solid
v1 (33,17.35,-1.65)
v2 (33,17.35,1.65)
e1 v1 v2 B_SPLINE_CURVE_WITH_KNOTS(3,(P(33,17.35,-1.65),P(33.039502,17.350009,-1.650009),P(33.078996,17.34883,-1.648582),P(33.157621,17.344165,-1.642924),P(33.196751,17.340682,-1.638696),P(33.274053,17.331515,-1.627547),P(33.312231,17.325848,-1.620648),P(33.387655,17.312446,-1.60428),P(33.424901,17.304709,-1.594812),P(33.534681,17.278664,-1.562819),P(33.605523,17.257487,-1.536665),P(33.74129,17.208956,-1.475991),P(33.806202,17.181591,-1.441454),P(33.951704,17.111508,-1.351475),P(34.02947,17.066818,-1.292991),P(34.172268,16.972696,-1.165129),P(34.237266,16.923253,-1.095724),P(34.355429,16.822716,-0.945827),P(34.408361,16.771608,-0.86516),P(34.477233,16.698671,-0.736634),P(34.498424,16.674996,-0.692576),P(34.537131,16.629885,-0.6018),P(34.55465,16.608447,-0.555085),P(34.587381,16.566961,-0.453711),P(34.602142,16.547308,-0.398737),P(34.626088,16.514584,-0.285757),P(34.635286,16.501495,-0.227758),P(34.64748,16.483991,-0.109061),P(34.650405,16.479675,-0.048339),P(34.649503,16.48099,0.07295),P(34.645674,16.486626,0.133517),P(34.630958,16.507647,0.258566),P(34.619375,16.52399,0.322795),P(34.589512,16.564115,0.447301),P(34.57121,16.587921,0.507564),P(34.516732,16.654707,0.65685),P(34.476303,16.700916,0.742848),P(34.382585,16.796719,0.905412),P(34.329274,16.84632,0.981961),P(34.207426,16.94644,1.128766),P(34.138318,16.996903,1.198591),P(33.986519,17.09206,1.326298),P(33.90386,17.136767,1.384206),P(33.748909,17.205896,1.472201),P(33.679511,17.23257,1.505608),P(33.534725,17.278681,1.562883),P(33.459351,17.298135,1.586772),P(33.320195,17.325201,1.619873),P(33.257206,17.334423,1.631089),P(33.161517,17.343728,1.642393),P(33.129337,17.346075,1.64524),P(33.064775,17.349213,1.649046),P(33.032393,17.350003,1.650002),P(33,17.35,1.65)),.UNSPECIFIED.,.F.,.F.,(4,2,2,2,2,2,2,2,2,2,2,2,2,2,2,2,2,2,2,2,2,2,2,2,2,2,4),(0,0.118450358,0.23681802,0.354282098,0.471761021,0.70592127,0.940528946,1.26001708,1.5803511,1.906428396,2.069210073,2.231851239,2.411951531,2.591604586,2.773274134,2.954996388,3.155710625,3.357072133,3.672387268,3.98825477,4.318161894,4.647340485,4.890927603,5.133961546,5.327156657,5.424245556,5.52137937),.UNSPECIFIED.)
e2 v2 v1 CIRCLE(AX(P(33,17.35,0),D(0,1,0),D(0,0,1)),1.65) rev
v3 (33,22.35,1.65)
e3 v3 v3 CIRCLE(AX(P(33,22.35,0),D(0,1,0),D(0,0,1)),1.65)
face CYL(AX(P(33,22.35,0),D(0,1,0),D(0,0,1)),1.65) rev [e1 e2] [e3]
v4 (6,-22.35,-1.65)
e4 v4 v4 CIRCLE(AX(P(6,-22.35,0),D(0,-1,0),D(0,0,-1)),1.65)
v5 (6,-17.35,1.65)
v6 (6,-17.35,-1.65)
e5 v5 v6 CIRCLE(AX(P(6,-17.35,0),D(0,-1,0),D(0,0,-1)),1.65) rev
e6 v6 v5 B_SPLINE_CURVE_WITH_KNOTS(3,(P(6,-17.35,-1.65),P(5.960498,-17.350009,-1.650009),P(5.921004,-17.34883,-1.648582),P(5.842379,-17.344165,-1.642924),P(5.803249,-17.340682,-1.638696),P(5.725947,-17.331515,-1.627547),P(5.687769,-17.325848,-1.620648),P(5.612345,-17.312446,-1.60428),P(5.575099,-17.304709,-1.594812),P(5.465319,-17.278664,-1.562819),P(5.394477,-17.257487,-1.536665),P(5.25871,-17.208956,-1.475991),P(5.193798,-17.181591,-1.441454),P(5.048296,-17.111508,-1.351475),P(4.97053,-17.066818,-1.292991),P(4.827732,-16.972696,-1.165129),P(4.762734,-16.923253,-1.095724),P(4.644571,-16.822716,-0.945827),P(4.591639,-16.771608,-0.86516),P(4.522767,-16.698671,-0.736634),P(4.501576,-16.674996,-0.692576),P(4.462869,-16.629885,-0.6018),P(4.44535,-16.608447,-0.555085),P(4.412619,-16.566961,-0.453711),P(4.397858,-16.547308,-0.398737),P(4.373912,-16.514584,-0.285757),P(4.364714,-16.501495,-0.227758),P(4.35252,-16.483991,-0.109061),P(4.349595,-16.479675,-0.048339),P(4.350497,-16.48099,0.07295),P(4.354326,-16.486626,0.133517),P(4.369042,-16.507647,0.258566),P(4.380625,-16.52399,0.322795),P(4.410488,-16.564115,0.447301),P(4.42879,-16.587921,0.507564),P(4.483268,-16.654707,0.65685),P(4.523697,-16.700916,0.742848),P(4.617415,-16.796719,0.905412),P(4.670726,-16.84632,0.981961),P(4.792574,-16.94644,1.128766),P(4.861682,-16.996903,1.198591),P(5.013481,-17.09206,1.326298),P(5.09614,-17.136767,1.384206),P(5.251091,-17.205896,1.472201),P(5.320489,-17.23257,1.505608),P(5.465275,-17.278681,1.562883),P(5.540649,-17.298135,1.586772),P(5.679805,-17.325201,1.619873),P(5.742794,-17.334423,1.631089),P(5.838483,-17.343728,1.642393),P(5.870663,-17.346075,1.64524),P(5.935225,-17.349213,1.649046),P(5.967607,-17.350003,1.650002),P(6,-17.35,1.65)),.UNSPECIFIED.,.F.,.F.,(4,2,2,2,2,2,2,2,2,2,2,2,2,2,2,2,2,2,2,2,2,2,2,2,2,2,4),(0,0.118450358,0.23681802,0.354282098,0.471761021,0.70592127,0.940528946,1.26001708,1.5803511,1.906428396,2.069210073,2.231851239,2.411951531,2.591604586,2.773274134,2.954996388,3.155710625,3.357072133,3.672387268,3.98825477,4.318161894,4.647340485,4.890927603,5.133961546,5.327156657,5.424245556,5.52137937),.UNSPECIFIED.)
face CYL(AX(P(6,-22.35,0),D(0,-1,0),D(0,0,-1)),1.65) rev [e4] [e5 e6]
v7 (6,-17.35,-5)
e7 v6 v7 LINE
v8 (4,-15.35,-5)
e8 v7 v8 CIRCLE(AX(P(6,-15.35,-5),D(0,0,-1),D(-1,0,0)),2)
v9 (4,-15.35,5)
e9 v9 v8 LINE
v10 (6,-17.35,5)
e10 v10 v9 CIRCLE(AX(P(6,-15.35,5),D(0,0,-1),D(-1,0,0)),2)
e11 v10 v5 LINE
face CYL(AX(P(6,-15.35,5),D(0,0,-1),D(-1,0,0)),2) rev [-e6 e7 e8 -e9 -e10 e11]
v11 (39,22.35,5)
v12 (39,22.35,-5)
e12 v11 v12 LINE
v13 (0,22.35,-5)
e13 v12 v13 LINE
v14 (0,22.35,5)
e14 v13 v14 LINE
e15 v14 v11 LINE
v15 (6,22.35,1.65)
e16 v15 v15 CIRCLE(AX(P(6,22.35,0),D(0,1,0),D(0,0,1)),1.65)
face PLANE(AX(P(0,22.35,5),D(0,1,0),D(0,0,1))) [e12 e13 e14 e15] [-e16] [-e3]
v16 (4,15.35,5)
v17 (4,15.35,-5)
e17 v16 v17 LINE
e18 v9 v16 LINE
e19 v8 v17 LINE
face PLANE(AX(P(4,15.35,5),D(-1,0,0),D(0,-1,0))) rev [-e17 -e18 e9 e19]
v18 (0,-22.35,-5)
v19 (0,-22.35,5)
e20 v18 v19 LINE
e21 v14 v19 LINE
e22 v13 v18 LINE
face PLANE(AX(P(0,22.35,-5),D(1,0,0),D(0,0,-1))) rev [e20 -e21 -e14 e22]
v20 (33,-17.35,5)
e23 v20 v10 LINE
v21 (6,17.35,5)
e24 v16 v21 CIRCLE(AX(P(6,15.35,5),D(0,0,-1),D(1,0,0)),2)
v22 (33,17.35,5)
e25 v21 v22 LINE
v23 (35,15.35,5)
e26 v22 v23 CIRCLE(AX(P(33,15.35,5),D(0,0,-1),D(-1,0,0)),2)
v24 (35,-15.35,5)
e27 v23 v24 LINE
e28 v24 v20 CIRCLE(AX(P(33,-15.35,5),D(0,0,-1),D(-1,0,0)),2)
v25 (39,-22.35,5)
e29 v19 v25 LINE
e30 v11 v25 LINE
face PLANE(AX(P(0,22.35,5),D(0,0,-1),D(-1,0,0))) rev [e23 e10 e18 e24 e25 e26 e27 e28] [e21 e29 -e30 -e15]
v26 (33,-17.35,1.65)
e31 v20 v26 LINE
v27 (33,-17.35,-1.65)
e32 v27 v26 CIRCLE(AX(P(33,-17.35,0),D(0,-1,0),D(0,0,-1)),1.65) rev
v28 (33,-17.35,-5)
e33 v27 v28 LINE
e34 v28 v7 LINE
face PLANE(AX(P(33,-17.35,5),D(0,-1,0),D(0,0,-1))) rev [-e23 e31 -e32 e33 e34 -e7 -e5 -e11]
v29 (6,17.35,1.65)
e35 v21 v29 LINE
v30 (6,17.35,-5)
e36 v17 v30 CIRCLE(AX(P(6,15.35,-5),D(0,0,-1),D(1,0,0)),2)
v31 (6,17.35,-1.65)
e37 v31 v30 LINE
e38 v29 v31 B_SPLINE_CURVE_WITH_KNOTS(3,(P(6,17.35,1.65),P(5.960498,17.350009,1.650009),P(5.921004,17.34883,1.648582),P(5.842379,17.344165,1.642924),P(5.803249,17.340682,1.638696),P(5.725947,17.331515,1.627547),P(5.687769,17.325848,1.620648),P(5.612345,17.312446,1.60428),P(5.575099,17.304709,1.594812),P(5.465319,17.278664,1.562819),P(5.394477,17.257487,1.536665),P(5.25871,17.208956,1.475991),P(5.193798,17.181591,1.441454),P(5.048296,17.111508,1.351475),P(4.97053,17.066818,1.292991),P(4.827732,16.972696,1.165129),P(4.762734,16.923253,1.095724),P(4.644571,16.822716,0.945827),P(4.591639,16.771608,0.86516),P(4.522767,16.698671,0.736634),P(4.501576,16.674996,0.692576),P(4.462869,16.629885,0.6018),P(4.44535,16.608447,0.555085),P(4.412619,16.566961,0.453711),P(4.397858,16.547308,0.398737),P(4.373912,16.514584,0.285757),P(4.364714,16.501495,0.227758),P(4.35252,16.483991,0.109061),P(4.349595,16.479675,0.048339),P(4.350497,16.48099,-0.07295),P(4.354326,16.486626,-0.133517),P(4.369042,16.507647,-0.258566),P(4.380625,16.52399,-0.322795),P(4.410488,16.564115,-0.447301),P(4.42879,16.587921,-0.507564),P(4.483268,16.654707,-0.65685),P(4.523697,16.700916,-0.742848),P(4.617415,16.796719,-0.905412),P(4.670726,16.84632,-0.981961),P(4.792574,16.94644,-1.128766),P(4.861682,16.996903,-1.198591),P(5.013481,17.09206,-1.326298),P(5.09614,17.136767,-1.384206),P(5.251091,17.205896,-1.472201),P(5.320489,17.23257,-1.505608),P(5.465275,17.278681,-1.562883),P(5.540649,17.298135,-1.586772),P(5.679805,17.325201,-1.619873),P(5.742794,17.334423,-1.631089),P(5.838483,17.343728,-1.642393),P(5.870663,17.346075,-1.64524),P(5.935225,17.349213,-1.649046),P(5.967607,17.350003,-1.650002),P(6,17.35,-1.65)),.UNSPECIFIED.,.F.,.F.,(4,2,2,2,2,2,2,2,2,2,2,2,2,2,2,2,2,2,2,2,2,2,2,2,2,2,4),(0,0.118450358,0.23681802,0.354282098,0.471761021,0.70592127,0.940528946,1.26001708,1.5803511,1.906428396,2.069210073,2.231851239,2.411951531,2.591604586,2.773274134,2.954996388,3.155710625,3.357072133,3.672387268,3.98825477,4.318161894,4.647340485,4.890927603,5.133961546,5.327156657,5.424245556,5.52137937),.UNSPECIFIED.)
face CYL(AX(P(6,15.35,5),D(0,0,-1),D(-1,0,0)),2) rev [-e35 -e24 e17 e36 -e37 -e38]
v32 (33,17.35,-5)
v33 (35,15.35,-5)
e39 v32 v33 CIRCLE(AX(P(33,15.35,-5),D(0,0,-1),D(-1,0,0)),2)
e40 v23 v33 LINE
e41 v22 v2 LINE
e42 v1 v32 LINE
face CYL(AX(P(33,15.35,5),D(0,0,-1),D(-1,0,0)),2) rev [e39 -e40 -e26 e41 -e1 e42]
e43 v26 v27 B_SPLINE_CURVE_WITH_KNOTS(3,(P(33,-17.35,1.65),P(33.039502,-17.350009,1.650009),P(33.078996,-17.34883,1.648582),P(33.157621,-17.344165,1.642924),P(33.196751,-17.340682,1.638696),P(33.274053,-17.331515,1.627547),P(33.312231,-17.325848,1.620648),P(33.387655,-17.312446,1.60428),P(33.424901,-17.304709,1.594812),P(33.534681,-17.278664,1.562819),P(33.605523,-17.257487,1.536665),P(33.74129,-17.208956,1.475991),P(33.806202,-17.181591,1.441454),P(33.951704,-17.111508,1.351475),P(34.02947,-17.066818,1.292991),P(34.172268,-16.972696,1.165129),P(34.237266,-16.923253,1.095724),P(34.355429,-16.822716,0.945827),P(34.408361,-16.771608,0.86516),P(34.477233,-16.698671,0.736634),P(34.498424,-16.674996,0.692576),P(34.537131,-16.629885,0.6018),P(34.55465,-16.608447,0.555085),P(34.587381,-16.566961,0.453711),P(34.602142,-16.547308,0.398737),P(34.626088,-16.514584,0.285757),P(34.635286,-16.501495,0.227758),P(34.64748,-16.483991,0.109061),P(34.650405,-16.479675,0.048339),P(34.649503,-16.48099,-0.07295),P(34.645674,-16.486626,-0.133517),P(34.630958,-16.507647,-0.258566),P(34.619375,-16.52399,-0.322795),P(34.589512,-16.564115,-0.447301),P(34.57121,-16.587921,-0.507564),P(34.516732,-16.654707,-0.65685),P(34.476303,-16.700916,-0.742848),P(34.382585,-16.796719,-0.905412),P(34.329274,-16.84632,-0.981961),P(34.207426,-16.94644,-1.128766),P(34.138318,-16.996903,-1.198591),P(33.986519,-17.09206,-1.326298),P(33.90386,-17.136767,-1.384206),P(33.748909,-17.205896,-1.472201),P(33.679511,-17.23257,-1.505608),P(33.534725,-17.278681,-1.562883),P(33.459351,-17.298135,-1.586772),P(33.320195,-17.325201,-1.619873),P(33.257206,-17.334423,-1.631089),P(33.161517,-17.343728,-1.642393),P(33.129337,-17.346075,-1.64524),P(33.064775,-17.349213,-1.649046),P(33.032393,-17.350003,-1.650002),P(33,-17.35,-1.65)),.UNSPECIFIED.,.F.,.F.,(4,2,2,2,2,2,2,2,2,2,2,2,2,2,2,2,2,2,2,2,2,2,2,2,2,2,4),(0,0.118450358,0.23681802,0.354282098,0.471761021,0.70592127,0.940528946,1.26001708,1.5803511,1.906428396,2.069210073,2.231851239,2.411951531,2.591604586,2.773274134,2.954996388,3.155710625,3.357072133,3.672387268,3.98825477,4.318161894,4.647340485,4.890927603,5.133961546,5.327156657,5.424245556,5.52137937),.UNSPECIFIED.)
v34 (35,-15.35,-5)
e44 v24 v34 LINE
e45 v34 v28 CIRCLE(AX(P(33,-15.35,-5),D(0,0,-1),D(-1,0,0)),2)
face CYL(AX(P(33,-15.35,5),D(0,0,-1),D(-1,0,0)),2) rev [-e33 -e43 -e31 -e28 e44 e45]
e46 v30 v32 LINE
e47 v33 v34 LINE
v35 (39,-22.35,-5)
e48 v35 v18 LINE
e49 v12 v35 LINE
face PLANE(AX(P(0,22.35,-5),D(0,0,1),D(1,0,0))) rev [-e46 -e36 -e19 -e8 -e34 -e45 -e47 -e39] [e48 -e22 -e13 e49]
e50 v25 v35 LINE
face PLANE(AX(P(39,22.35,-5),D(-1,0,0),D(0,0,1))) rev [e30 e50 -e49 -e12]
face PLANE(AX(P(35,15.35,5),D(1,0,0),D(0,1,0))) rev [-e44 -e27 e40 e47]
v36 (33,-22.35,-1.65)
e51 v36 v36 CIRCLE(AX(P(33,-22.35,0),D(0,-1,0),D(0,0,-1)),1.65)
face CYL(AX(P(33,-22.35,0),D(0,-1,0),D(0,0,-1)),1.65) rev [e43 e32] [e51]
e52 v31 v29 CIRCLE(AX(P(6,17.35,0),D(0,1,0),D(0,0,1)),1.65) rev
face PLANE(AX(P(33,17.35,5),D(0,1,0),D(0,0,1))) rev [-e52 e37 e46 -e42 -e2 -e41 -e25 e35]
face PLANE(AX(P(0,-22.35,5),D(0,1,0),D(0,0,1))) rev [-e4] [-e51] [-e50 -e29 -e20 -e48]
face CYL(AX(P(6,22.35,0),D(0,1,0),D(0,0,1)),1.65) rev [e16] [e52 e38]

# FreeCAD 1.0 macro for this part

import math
import FreeCAD as App
import Part
import Sketcher

V = App.Vector

doc = App.newDocument("Part")
body = doc.addObject("PartDesign::Body", "Body")

# Sketch on XZ plane
sketch1 = body.newObject("Sketcher::SketchObject", "Sketch")
sketch1.AttachmentSupport = (doc.getObject("XZ_Plane"), [""])
sketch1.MapMode = "FlatFace"
sketch1.addGeometry(Part.LineSegment(V(0, -5, 0), V(0, 5, 0)), False)
sketch1.addGeometry(Part.LineSegment(V(0, 5, 0), V(39, 5, 0)), False)
sketch1.addGeometry(Part.LineSegment(V(39, 5, 0), V(39, -5, 0)), False)
sketch1.addGeometry(Part.LineSegment(V(39, -5, 0), V(0, -5, 0)), False)
sketch1.addConstraint(Sketcher.Constraint("Coincident", 0, 2, 1, 1))
sketch1.addConstraint(Sketcher.Constraint("Coincident", 1, 2, 2, 1))
sketch1.addConstraint(Sketcher.Constraint("Coincident", 2, 2, 3, 1))
sketch1.addConstraint(Sketcher.Constraint("Coincident", 3, 2, 0, 1))
sketch1.addConstraint(Sketcher.Constraint("Vertical", 0))
sketch1.addConstraint(Sketcher.Constraint("Horizontal", 1))
sketch1.addConstraint(Sketcher.Constraint("Vertical", 2))
sketch1.addConstraint(Sketcher.Constraint("Horizontal", 3))
sketch1.addConstraint(Sketcher.Constraint("Symmetric", 0, 2, 3, 2, -1, 1))
sketch1.addConstraint(Sketcher.Constraint("DistanceX", 1, 1, 1, 2, 39.0))
sketch1.addConstraint(Sketcher.Constraint("DistanceY", 0, 1, 0, 2, 10.0))
pad1 = body.newObject("PartDesign::Pad", "Pad")
pad1.Profile = sketch1
pad1.Length = 44.7
pad1.Midplane = True

# Sketch on XZ plane
sketch2 = body.newObject("Sketcher::SketchObject", "Sketch001")
sketch2.AttachmentSupport = (doc.getObject("XZ_Plane"), [""])
sketch2.MapMode = "FlatFace"
sketch2.AttachmentOffset = App.Placement(V(0, 0, 22.35), App.Rotation())
sketch2.addGeometry(Part.Circle(V(33, 0, 0), V(0, 0, 1), 1.6), False)
sketch2.addGeometry(Part.Circle(V(6, 0, 0), V(0, 0, 1), 1.6), False)
sketch2.addConstraint(Sketcher.Constraint("Equal", 0, 1))
sketch2.addConstraint(Sketcher.Constraint("PointOnObject", 0, 3, -1))
sketch2.addConstraint(Sketcher.Constraint("PointOnObject", 1, 3, -1))
sketch2.addConstraint(Sketcher.Constraint("Diameter", 0, 3.3))
sketch2.addConstraint(Sketcher.Constraint("DistanceX", -1, 1, 0, 3, 33.0))
sketch2.addConstraint(Sketcher.Constraint("DistanceX", -1, 1, 1, 3, 6.0))
doc.recompute()
hole = body.newObject("PartDesign::Hole", "Hole")
hole.Profile = sketch2
hole.ThreadType = "None"
hole.Diameter = 3.3
hole.DepthType = "Dimension"
hole.Depth = 10.1
hole.DrillPoint = "Angled"
hole.DrillPointAngle = 118

# Sketch on XZ plane
sketch3 = body.newObject("Sketcher::SketchObject", "Sketch002")
sketch3.AttachmentSupport = (doc.getObject("XZ_Plane"), [""])
sketch3.MapMode = "FlatFace"
sketch3.AttachmentOffset = App.Placement(V(0, 0, -22.35), App.Rotation())
sketch3.addGeometry(Part.Circle(V(6, 0, 0), V(0, 0, 1), 1.6), False)
sketch3.addGeometry(Part.Circle(V(33, 0, 0), V(0, 0, 1), 1.6), False)
sketch3.addConstraint(Sketcher.Constraint("Equal", 0, 1))
sketch3.addConstraint(Sketcher.Constraint("PointOnObject", 0, 3, -1))
sketch3.addConstraint(Sketcher.Constraint("PointOnObject", 1, 3, -1))
sketch3.addConstraint(Sketcher.Constraint("Diameter", 0, 3.3))
sketch3.addConstraint(Sketcher.Constraint("DistanceX", -1, 1, 0, 3, 6.0))
sketch3.addConstraint(Sketcher.Constraint("DistanceX", -1, 1, 1, 3, 33.0))
doc.recompute()
hole2 = body.newObject("PartDesign::Hole", "Hole001")
hole2.Profile = sketch3
hole2.ThreadType = "None"
hole2.Diameter = 3.3
hole2.DepthType = "Dimension"
hole2.Depth = 10.1
hole2.DrillPoint = "Angled"
hole2.DrillPointAngle = 118
hole2.Reversed = True

# Sketch on XY plane
sketch4 = body.newObject("Sketcher::SketchObject", "Sketch003")
sketch4.AttachmentSupport = (doc.getObject("XY_Plane"), [""])
sketch4.MapMode = "FlatFace"
sketch4.AttachmentOffset = App.Placement(V(0, 0, -5), App.Rotation())
sketch4.addGeometry(Part.LineSegment(V(6, 17.4, 0), V(33, 17.4, 0)), False)
sketch4.addGeometry(Part.ArcOfCircle(Part.Circle(V(33, 15.3, 0), V(0, 0, 1), 2), math.radians(0), math.radians(90)), False)
sketch4.addGeometry(Part.LineSegment(V(35, 15.3, 0), V(35, -15.3, 0)), False)
sketch4.addGeometry(Part.ArcOfCircle(Part.Circle(V(33, -15.3, 0), V(0, 0, 1), 2), math.radians(-90), math.radians(0)), False)
sketch4.addGeometry(Part.LineSegment(V(33, -17.4, 0), V(6, -17.4, 0)), False)
sketch4.addGeometry(Part.ArcOfCircle(Part.Circle(V(6, -15.3, 0), V(0, 0, 1), 2), math.radians(-180), math.radians(-90)), False)
sketch4.addGeometry(Part.LineSegment(V(4, -15.3, 0), V(4, 15.3, 0)), False)
sketch4.addGeometry(Part.ArcOfCircle(Part.Circle(V(6, 15.3, 0), V(0, 0, 1), 2), math.radians(90), math.radians(180)), False)
sketch4.addConstraint(Sketcher.Constraint("Tangent", 0, 2, 1, 2))
sketch4.addConstraint(Sketcher.Constraint("Tangent", 1, 1, 2, 1))
sketch4.addConstraint(Sketcher.Constraint("Tangent", 2, 2, 3, 2))
sketch4.addConstraint(Sketcher.Constraint("Tangent", 3, 1, 4, 1))
sketch4.addConstraint(Sketcher.Constraint("Tangent", 4, 2, 5, 2))
sketch4.addConstraint(Sketcher.Constraint("Tangent", 5, 1, 6, 1))
sketch4.addConstraint(Sketcher.Constraint("Tangent", 6, 2, 7, 2))
sketch4.addConstraint(Sketcher.Constraint("Tangent", 7, 1, 0, 1))
sketch4.addConstraint(Sketcher.Constraint("Horizontal", 0))
sketch4.addConstraint(Sketcher.Constraint("Vertical", 2))
sketch4.addConstraint(Sketcher.Constraint("Horizontal", 4))
sketch4.addConstraint(Sketcher.Constraint("Vertical", 6))
sketch4.addConstraint(Sketcher.Constraint("Equal", 1, 3))
sketch4.addConstraint(Sketcher.Constraint("Equal", 3, 5))
sketch4.addConstraint(Sketcher.Constraint("Equal", 5, 7))
sketch4.addConstraint(Sketcher.Constraint("Radius", 1, 2.0))
sketch4.addConstraint(Sketcher.Constraint("DistanceX", 0, 1, 0, 2, 27.0))
sketch4.addConstraint(Sketcher.Constraint("DistanceY", 2, 2, 2, 1, 30.7))
sketch4.addConstraint(Sketcher.Constraint("DistanceX", -1, 1, 1, 3, 33.0))
sketch4.addConstraint(Sketcher.Constraint("DistanceY", -1, 1, 1, 3, 15.35))
pocket1 = body.newObject("PartDesign::Pocket", "Pocket")
pocket1.Profile = sketch4
pocket1.Type = "ThroughAll"
pocket1.Reversed = True

doc.recompute()
